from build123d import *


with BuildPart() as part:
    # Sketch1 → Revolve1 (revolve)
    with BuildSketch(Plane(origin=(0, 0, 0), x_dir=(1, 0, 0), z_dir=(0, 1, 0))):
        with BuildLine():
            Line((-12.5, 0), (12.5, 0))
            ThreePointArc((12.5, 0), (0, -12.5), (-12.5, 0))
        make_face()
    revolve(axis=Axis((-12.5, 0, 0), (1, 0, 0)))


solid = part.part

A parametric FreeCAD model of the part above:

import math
import FreeCAD as App
import Part
import Sketcher

doc = App.newDocument("Part")
body = doc.addObject("PartDesign::Body", "Body")

sketch1 = body.newObject("Sketcher::SketchObject", "Sketch")
sketch1.AttachmentSupport = (doc.getObject("XZ_Plane"), [""])
sketch1.MapMode = "FlatFace"
sketch1.addGeometry([
    Part.LineSegment(App.Vector(12, 0, 0), App.Vector(-12, 0, 0)),
    Part.ArcOfCircle(Part.Circle(App.Vector(0, 0, 0), App.Vector(0, 0, 1), 12), math.radians(0), math.radians(180)),
], False)
sketch1.addConstraint([
    Sketcher.Constraint("Coincident", 0, 1, 1, 1),
    Sketcher.Constraint("Coincident", 1, 2, 0, 2),
    Sketcher.Constraint("Horizontal", 0),
    Sketcher.Constraint("Coincident", 1, 3, -1, 1),
    Sketcher.Constraint("PointOnObject", 0, 1, -1),
    Sketcher.Constraint("Radius", 1, 12.5),
])
revolution = body.newObject("PartDesign::Revolution", "Revolution")
revolution.Profile = sketch1
revolution.ReferenceAxis = (sketch1, ["H_Axis"])
revolution.Angle = 360

doc.recompute()
